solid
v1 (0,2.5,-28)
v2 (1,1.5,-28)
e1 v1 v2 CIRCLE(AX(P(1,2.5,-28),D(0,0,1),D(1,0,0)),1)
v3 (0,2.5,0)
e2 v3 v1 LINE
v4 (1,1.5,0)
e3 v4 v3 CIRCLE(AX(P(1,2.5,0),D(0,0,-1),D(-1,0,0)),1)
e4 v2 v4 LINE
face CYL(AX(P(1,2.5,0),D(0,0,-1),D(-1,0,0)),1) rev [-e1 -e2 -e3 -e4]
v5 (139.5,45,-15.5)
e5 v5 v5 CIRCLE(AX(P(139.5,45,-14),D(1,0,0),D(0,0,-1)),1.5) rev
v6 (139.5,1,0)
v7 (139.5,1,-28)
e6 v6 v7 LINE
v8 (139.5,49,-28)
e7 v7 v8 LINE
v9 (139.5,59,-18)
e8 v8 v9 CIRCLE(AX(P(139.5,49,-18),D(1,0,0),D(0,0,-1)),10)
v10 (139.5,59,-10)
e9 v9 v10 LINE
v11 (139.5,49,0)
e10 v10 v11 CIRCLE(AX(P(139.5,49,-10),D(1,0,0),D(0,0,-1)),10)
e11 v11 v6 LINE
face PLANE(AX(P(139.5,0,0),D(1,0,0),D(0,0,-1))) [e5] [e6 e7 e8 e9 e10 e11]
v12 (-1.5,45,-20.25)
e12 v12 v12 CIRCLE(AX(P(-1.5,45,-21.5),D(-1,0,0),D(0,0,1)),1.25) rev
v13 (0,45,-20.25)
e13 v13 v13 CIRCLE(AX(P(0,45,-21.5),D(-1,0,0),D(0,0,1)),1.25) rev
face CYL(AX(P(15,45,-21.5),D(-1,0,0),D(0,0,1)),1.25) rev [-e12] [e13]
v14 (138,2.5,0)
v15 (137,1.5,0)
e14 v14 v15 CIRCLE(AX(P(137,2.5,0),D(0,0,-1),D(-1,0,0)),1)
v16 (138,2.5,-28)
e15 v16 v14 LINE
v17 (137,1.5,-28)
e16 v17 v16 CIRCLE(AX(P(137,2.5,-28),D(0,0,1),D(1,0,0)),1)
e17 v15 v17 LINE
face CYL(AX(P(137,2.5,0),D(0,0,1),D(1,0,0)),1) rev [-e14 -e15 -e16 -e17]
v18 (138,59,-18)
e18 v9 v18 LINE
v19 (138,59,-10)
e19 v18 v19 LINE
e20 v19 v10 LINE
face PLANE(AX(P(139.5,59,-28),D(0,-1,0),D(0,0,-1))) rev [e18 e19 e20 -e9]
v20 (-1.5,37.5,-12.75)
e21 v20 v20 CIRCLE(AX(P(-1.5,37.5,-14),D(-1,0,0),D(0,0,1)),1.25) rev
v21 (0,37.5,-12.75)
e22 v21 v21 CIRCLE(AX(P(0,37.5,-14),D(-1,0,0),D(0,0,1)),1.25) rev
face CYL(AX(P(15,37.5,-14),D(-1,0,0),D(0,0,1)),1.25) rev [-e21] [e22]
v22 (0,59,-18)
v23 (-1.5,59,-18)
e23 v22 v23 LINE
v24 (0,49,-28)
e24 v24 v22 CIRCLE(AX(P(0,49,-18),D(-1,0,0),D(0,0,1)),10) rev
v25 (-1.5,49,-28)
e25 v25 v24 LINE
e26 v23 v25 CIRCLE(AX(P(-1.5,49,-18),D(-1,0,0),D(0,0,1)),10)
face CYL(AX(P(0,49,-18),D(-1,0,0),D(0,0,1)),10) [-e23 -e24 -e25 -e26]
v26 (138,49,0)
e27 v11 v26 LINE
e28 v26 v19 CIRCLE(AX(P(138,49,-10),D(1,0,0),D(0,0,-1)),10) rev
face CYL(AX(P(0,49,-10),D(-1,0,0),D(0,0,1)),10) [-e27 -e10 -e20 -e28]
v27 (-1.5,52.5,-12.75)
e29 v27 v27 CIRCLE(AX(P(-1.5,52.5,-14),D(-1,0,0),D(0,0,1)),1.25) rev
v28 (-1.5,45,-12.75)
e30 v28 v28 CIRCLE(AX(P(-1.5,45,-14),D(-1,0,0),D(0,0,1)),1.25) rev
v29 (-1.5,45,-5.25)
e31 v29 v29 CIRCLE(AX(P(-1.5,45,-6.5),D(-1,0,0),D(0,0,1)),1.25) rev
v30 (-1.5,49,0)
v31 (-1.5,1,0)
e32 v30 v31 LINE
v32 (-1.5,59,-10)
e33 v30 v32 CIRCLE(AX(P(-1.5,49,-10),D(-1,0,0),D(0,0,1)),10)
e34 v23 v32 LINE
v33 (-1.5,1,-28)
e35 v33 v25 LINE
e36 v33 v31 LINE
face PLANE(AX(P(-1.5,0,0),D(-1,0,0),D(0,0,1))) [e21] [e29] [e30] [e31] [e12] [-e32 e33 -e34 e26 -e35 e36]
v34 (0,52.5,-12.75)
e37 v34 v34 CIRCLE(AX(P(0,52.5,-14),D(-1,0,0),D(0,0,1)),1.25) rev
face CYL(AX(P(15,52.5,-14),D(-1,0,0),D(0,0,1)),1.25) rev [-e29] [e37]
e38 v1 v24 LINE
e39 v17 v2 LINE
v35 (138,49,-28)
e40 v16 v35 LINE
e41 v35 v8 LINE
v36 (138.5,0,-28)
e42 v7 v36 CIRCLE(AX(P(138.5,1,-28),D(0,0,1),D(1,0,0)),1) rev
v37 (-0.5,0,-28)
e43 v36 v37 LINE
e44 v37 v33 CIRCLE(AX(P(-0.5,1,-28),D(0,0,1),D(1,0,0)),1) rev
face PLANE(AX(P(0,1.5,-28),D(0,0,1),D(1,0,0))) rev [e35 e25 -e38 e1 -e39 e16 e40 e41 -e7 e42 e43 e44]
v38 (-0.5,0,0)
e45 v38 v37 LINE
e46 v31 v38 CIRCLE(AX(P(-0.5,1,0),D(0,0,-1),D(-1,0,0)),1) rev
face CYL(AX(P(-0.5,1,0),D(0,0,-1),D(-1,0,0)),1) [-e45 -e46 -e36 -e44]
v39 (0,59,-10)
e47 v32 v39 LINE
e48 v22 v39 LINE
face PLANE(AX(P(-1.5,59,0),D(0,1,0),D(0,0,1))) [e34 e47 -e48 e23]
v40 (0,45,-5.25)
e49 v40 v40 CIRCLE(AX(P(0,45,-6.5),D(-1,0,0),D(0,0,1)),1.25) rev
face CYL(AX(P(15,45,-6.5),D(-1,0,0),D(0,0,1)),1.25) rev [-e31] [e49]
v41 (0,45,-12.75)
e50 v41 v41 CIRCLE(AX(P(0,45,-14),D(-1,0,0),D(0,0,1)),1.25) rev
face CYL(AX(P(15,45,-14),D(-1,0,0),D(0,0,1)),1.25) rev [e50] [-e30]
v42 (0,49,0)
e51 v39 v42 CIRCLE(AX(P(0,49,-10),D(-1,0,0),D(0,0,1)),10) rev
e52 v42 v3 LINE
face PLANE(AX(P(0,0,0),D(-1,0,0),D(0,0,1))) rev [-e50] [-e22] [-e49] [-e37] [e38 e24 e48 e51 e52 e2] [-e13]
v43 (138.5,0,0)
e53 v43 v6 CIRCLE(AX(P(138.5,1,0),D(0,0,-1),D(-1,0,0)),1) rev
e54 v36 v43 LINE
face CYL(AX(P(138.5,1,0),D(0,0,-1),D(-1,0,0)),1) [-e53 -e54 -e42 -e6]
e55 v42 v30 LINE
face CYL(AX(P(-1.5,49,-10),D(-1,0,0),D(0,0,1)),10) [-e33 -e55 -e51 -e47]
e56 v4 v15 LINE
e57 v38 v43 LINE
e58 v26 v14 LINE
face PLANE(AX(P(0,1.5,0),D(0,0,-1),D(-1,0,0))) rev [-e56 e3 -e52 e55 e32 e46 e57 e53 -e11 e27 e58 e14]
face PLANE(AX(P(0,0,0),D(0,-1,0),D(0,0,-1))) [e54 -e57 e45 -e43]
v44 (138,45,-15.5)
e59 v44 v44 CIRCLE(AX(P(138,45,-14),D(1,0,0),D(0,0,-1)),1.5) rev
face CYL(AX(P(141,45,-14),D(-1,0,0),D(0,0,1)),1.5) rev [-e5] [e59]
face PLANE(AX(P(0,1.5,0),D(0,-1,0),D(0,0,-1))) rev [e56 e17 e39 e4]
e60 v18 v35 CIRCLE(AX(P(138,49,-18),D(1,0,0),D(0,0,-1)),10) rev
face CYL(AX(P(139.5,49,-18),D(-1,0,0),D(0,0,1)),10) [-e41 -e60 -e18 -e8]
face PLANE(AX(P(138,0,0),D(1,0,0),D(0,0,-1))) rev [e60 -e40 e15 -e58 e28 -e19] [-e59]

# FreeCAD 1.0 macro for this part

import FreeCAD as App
import Part
import Sketcher
from FreeCAD import Vector


def edges_at(feature, points):
    """Names of the edges that pass closest to the given points."""
    edges = feature.Shape.Edges
    near = lambda p: min(range(len(edges)), key=lambda i: edges[i].distToShape(Part.Vertex(*p))[0])
    return sorted({f"Edge{near(p) + 1}" for p in points})


def add_polygon(sketch, points):
    """Adds a closed chain of lines whose ends are joined by coincident constraints."""
    first, n = sketch.GeometryCount, len(points)
    for a, b in zip(points, points[1:] + points[:1]):
        sketch.addGeometry(Part.LineSegment(App.Vector(*a, 0), App.Vector(*b, 0)), False)
    for i in range(n):
        sketch.addConstraint(Sketcher.Constraint("Coincident", first + i, 2, first + (i + 1) % n, 1))

doc = App.newDocument("Part")
params = doc.addObject("Spreadsheet::Sheet", "Params")
for row, (alias, value) in enumerate([
    ("sketch1_width", "138 mm"),
    ("sketch1_height", "28 mm"),
    ("pad1_length", "1.5 mm"),
    ("sketch2_width", "59 mm"),
    ("sketch2_height", "28 mm"),
    ("pad2_length", "1.5 mm"),
    ("fillet_radius", "1 mm"),
    ("fillet2_radius", "1 mm"),
    ("fillet3_radius", "10 mm"),
    ("sketch3_diameter", "2.5 mm"),
    ("sketch4_width", "59 mm"),
    ("sketch4_height", "28 mm"),
    ("pad3_length", "1.5 mm"),
    ("fillet4_radius", "1 mm"),
    ("fillet5_radius", "1 mm"),
    ("sketch5_diameter", "3 mm"),
    ("pocket2_length", "1.5 mm"),
    ("pocket2_length2", "31.5 mm"),
    ("fillet6_radius", "10 mm"),
    ("fillet7_radius", "10 mm"),
], start=1):
    params.set(f"A{row}", alias)
    params.set(f"B{row}", "=" + value)
    params.setAlias(f"B{row}", alias)

body = doc.addObject("PartDesign::Body", "Body")

# Sketch on XZ plane
sketch1 = doc.addObject("Sketcher::SketchObject", "Sketch")
body.addObject(sketch1)
sketch1.AttachmentSupport = (doc.XZ_Plane, [""])
sketch1.MapMode = "FlatFace"
add_polygon(sketch1, [(0, -28), (0, 0), (138, 0), (138, -28)])  # lines 0-3
sketch1.addConstraint([
    Sketcher.Constraint("Vertical", 0),
    Sketcher.Constraint("Horizontal", 1),
    Sketcher.Constraint("Vertical", 2),
    Sketcher.Constraint("Horizontal", 3),
    Sketcher.Constraint("Coincident", 0, 2, -1, 1),
    Sketcher.Constraint("DistanceX", 1, 1, 1, 2, 138.0),
    Sketcher.Constraint("DistanceY", 0, 1, 0, 2, 28.0),
])
sketch1.setExpression("Constraints[9]", "Params.sketch1_width")
sketch1.setExpression("Constraints[10]", "Params.sketch1_height")
pad1 = doc.addObject("PartDesign::Pad", "Pad")
body.addObject(pad1)
pad1.Profile = sketch1
pad1.setExpression("Length", "Params.pad1_length")
pad1.Reversed = True

# Sketch on YZ plane
sketch2 = doc.addObject("Sketcher::SketchObject", "Sketch001")
body.addObject(sketch2)
sketch2.AttachmentSupport = (doc.YZ_Plane, [""])
sketch2.MapMode = "FlatFace"
add_polygon(sketch2, [(59, 0), (0, 0), (0, -28), (59, -28)])  # lines 0-3
sketch2.addConstraint([
    Sketcher.Constraint("Horizontal", 0),
    Sketcher.Constraint("Vertical", 1),
    Sketcher.Constraint("Horizontal", 2),
    Sketcher.Constraint("Vertical", 3),
    Sketcher.Constraint("Coincident", 0, 2, -1, 1),
    Sketcher.Constraint("DistanceX", 0, 2, 0, 1, 59.0),
    Sketcher.Constraint("DistanceY", 1, 2, 1, 1, 28.0),
])
sketch2.setExpression("Constraints[9]", "Params.sketch2_width")
sketch2.setExpression("Constraints[10]", "Params.sketch2_height")
pad2 = doc.addObject("PartDesign::Pad", "Pad001")
body.addObject(pad2)
pad2.Profile = sketch2
pad2.setExpression("Length", "Params.pad2_length")
pad2.Reversed = True
doc.recompute()

fillet = doc.addObject("PartDesign::Fillet", "Fillet")
body.addObject(fillet)
fillet.Base = (pad2, edges_at(pad2, [(0, 1.5, -14)]))
fillet.setExpression("Radius", "Params.fillet_radius")
doc.recompute()

fillet2 = doc.addObject("PartDesign::Fillet", "Fillet001")
body.addObject(fillet2)
fillet2.Base = (fillet, edges_at(fillet, [(-1.5, 0, -14)]))
fillet2.setExpression("Radius", "Params.fillet2_radius")
doc.recompute()

fillet3 = doc.addObject("PartDesign::Fillet", "Fillet002")
body.addObject(fillet3)
fillet3.Base = (fillet2, edges_at(fillet2, [(-0.75, 59, 0), (-0.75, 59, -28)]))
fillet3.setExpression("Radius", "Params.fillet3_radius")

# Sketch on YZ plane
sketch3 = doc.addObject("Sketcher::SketchObject", "Sketch002")
body.addObject(sketch3)
sketch3.AttachmentSupport = (doc.YZ_Plane, [""])
sketch3.MapMode = "FlatFace"
sketch3.addGeometry([
    Part.Circle(Vector(52.5, -14, 0), Vector(0, 0, 1), 1.25),  # 0
    Part.Circle(Vector(45, -6.5, 0), Vector(0, 0, 1), 1.25),  # 1
    Part.Circle(Vector(45, -14, 0), Vector(0, 0, 1), 1.25),  # 2
    Part.Circle(Vector(45, -21.5, 0), Vector(0, 0, 1), 1.25),  # 3
    Part.Circle(Vector(37.5, -14, 0), Vector(0, 0, 1), 1.25),  # 4
], False)
sketch3.addConstraint([
    Sketcher.Constraint("Equal", 0, 1),
    Sketcher.Constraint("Equal", 1, 2),
    Sketcher.Constraint("Equal", 2, 3),
    Sketcher.Constraint("Equal", 3, 4),
    Sketcher.Constraint("Horizontal", 0, 3, 2, 3),
    Sketcher.Constraint("Horizontal", 2, 3, 4, 3),
    Sketcher.Constraint("Vertical", 1, 3, 2, 3),
    Sketcher.Constraint("Vertical", 2, 3, 3, 3),
    Sketcher.Constraint("Diameter", 0, 2.5),
    Sketcher.Constraint("DistanceY", 0, 3, -1, 1, 14.0),
    Sketcher.Constraint("DistanceX", -1, 1, 1, 3, 45.0),
    Sketcher.Constraint("DistanceY", 3, 3, 1, 3, 15.0),
    Sketcher.Constraint("DistanceX", 4, 3, 0, 3, 15.0),
    Sketcher.Constraint("DistanceX", -1, 1, 0, 3, 52.5),
    Sketcher.Constraint("DistanceY", 1, 3, -1, 1, 6.5),
])
sketch3.setExpression("Constraints[8]", "Params.sketch3_diameter")
pocket1 = doc.addObject("PartDesign::Pocket", "Pocket")
body.addObject(pocket1)
pocket1.Profile = sketch3
pocket1.Type = "ThroughAll"
pocket1.Midplane = True

# Sketch on YZ plane
sketch4 = doc.addObject("Sketcher::SketchObject", "Sketch003")
body.addObject(sketch4)
sketch4.AttachmentSupport = (doc.YZ_Plane, [""])
sketch4.MapMode = "FlatFace"
sketch4.AttachmentOffset = App.Placement(Vector(0, 0, 138), App.Rotation())
add_polygon(sketch4, [(59, 0), (0, 0), (0, -28), (59, -28)])  # lines 0-3
sketch4.addConstraint([
    Sketcher.Constraint("Horizontal", 0),
    Sketcher.Constraint("Vertical", 1),
    Sketcher.Constraint("Horizontal", 2),
    Sketcher.Constraint("Vertical", 3),
    Sketcher.Constraint("Coincident", 0, 2, -1, 1),
    Sketcher.Constraint("DistanceX", 0, 2, 0, 1, 59.0),
    Sketcher.Constraint("DistanceY", 1, 2, 1, 1, 28.0),
])
sketch4.setExpression("Constraints[9]", "Params.sketch4_width")
sketch4.setExpression("Constraints[10]", "Params.sketch4_height")
pad3 = doc.addObject("PartDesign::Pad", "Pad002")
body.addObject(pad3)
pad3.Profile = sketch4
pad3.setExpression("Length", "Params.pad3_length")
doc.recompute()

fillet4 = doc.addObject("PartDesign::Fillet", "Fillet003")
body.addObject(fillet4)
fillet4.Base = (pad3, edges_at(pad3, [(139.5, 0, -14)]))
fillet4.setExpression("Radius", "Params.fillet4_radius")
doc.recompute()

fillet5 = doc.addObject("PartDesign::Fillet", "Fillet004")
body.addObject(fillet5)
fillet5.Base = (fillet4, edges_at(fillet4, [(138, 1.5, -14)]))
fillet5.setExpression("Radius", "Params.fillet5_radius")

# Sketch on YZ plane
sketch5 = doc.addObject("Sketcher::SketchObject", "Sketch004")
body.addObject(sketch5)
sketch5.AttachmentSupport = (doc.YZ_Plane, [""])
sketch5.MapMode = "FlatFace"
sketch5.AttachmentOffset = App.Placement(Vector(0, 0, 139.5), App.Rotation())
sketch5.addGeometry(Part.Circle(Vector(45, -14, 0), Vector(0, 0, 1), 1.5), False)
sketch5.addConstraint([
    Sketcher.Constraint("Diameter", 0, 3.0),
    Sketcher.Constraint("DistanceX", -1, 1, 0, 3, 45.0),
    Sketcher.Constraint("DistanceY", 0, 3, -1, 1, 14.0),
])
sketch5.setExpression("Constraints[0]", "Params.sketch5_diameter")
pocket2 = doc.addObject("PartDesign::Pocket", "Pocket001")
body.addObject(pocket2)
pocket2.Profile = sketch5
pocket2.Type = "TwoLengths"
pocket2.setExpression("Length", "Params.pocket2_length")
pocket2.setExpression("Length2", "Params.pocket2_length2")
pocket2.Reversed = True
doc.recompute()

fillet6 = doc.addObject("PartDesign::Fillet", "Fillet005")
body.addObject(fillet6)
fillet6.Base = (pocket2, edges_at(pocket2, [(138.75, 59, -28)]))
fillet6.setExpression("Radius", "Params.fillet6_radius")
doc.recompute()

fillet7 = doc.addObject("PartDesign::Fillet", "Fillet006")
body.addObject(fillet7)
fillet7.Base = (fillet6, edges_at(fillet6, [(138.75, 59, 0)]))
fillet7.setExpression("Radius", "Params.fillet7_radius")

doc.recompute()
